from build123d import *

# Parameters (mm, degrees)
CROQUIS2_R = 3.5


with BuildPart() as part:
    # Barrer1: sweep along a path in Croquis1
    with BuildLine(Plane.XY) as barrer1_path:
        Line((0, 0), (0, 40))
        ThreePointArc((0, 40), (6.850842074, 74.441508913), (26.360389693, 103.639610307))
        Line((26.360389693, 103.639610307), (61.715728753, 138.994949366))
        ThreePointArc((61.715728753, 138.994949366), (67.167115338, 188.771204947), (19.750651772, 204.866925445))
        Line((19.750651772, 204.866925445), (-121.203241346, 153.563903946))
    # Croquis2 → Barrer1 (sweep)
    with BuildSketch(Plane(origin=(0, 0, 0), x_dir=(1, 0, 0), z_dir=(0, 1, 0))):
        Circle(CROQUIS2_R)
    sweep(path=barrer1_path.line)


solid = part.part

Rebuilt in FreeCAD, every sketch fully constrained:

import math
import FreeCAD as App
import Part
import Sketcher

V = App.Vector
Q = App.Units.Quantity

doc = App.newDocument("Part")
body = doc.addObject("PartDesign::Body", "Body")

# Sketch on XZ plane
sketch1 = body.newObject("Sketcher::SketchObject", "Sketch")
sketch1.AttachmentSupport = (doc.getObject("XZ_Plane"), [""])
sketch1.MapMode = "FlatFace"
sketch1.addGeometry(Part.Circle(V(0, 0, 0), V(0, 0, 1), 3.5), False)
sketch1.addConstraint(Sketcher.Constraint("Coincident", 0, 3, -1, 1))
sketch1.addConstraint(Sketcher.Constraint("Diameter", 0, Q("7 mm")))

# Sketch on XY plane
sketch2 = body.newObject("Sketcher::SketchObject", "Sketch001")
sketch2.AttachmentSupport = (doc.getObject("XY_Plane"), [""])
sketch2.MapMode = "FlatFace"
sketch2.addGeometry(Part.LineSegment(V(0, 0, 0), V(0, 40, 0)), False)
sketch2.addGeometry(Part.ArcOfCircle(Part.Circle(V(90, 40, 0), V(0, 0, 1), 90), math.radians(135), math.radians(180)), False)
sketch2.addGeometry(Part.LineSegment(V(26, 104, 0), V(62, 139, 0)), False)
sketch2.addGeometry(Part.ArcOfCircle(Part.Circle(V(33, 167, 0), V(0, 0, 1), 40), math.radians(-45), math.radians(110)), False)
sketch2.addGeometry(Part.LineSegment(V(20, 205, 0), V(-121, 154, 0)), False)
sketch2.addConstraint(Sketcher.Constraint("Tangent", 0, 2, 1, 2))
sketch2.addConstraint(Sketcher.Constraint("Tangent", 1, 1, 2, 1))
sketch2.addConstraint(Sketcher.Constraint("Tangent", 2, 2, 3, 1))
sketch2.addConstraint(Sketcher.Constraint("Tangent", 3, 2, 4, 1))
sketch2.addConstraint(Sketcher.Constraint("Vertical", 0))
sketch2.addConstraint(Sketcher.Constraint("Coincident", 0, 1, -1, 1))
sketch2.addConstraint(Sketcher.Constraint("Radius", 1, Q("90 mm")))
sketch2.addConstraint(Sketcher.Constraint("Radius", 3, Q("40 mm")))
sketch2.addConstraint(Sketcher.Constraint("DistanceY", 0, 1, 0, 2, Q("40 mm")))
sketch2.addConstraint(Sketcher.Constraint("Angle", 2, Q("45 deg")))
sketch2.addConstraint(Sketcher.Constraint("Angle", 4, Q("-160 deg")))
sketch2.addConstraint(Sketcher.Constraint("Distance", 2, Q("50 mm")))
sketch2.addConstraint(Sketcher.Constraint("Distance", 4, Q("150 mm")))
doc.recompute()

additivepipe = body.newObject("PartDesign::AdditivePipe", "AdditivePipe")
additivepipe.Profile = sketch1
additivepipe.Spine = (sketch2, ["Edge1", "Edge2", "Edge3", "Edge4", "Edge5"])

doc.recompute()
